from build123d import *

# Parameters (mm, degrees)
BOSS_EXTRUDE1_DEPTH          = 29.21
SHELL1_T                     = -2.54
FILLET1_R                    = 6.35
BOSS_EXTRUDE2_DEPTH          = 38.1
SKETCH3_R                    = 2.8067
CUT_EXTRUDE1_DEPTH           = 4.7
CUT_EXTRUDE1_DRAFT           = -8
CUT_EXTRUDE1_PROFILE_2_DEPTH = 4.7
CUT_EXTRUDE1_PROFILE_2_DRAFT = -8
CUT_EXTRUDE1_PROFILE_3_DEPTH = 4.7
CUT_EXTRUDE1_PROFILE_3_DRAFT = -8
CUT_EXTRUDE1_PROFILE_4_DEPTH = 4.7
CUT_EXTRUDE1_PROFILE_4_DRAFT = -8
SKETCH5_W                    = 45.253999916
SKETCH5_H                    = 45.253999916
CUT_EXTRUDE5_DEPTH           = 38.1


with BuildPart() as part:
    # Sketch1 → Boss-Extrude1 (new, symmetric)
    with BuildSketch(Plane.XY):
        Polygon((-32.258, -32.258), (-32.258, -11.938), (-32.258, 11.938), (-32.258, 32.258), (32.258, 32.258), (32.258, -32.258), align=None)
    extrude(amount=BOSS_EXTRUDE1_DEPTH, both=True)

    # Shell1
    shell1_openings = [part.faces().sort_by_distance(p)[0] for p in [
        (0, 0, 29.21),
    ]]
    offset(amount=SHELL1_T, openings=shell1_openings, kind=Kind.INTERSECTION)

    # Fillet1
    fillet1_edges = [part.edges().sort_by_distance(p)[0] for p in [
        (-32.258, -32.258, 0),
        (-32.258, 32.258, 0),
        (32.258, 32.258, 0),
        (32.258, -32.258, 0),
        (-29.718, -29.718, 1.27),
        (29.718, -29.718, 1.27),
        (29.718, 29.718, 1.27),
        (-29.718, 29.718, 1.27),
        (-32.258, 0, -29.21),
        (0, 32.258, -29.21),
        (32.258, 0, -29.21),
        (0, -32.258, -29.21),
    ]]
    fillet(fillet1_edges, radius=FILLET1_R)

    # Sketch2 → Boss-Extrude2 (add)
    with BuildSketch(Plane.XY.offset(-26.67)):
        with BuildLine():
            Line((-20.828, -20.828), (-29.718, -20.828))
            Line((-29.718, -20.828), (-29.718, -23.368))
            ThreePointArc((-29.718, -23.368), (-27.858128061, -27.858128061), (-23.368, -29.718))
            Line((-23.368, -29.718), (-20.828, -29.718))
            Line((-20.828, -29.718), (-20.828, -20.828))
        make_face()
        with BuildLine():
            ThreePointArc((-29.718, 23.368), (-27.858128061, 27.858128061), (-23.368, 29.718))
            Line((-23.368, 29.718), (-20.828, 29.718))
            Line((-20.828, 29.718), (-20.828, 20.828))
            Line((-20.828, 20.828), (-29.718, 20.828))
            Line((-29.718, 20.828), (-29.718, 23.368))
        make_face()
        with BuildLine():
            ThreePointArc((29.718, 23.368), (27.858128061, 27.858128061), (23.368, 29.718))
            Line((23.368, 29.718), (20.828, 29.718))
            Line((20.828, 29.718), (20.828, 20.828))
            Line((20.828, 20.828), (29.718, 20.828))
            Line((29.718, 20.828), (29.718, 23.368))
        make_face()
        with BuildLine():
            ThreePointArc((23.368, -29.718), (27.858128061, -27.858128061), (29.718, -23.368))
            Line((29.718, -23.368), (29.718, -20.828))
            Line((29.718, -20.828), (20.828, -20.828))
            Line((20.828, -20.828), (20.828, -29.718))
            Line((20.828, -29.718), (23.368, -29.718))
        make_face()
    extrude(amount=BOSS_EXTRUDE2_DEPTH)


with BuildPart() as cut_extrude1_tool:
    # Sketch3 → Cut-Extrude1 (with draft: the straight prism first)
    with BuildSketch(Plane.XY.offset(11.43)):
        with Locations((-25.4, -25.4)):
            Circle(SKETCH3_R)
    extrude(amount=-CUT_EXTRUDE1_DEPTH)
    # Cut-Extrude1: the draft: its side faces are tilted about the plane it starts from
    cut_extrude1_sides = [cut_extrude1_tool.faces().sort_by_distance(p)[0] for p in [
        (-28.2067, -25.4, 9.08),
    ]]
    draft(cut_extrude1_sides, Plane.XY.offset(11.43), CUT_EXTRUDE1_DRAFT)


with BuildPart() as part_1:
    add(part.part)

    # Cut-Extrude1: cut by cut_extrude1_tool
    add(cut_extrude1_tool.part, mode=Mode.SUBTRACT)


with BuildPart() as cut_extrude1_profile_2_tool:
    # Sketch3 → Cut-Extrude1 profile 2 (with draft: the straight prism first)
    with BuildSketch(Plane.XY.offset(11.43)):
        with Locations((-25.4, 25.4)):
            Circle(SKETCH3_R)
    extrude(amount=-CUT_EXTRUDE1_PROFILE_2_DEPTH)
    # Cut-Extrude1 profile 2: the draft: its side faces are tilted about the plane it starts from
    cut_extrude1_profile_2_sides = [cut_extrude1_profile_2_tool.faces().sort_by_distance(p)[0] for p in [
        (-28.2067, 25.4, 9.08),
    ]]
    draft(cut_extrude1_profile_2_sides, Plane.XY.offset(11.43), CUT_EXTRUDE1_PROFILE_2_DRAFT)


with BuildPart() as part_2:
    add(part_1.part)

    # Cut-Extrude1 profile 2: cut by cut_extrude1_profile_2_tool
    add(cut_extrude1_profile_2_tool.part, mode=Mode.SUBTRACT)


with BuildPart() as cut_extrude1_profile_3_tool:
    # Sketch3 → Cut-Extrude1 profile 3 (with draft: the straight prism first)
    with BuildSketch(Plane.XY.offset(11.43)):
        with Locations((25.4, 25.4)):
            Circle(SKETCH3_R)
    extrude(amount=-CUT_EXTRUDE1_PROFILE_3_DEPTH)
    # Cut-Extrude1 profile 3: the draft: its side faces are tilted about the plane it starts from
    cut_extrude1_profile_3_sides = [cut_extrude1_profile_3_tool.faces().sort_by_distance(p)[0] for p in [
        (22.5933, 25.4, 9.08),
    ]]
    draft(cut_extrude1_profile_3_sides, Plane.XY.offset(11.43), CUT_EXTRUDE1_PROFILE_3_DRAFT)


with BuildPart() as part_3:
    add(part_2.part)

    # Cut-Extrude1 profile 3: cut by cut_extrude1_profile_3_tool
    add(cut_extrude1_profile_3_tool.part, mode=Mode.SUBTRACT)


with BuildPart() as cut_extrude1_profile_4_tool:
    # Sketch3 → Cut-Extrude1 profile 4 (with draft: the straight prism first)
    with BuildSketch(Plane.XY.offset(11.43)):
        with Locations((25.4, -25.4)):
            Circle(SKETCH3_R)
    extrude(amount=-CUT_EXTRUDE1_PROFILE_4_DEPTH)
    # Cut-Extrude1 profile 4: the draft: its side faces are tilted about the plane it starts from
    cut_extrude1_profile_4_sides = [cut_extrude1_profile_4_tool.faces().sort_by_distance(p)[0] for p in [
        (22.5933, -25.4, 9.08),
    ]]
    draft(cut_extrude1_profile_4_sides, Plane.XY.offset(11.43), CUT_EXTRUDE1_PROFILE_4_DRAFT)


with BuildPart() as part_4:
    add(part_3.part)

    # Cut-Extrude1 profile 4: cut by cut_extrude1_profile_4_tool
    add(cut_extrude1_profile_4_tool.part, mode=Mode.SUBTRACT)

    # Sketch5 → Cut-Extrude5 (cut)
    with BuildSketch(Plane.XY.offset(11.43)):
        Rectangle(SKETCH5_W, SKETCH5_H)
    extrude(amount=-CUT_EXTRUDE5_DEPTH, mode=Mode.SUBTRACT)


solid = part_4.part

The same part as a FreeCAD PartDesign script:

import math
import FreeCAD as App
import Part
import Sketcher

V = App.Vector
Q = App.Units.Quantity


def edges_at(feature, points):
    """Names of the edges that pass closest to the given points."""
    edges = feature.Shape.Edges
    near = lambda p: min(range(len(edges)), key=lambda i: edges[i].distToShape(Part.Vertex(*p))[0])
    return sorted({f"Edge{near(p) + 1}" for p in points})


def faces_at(feature, points):
    """Names of the faces that lie closest to the given points."""
    faces = feature.Shape.Faces
    near = lambda p: min(range(len(faces)), key=lambda i: faces[i].distToShape(Part.Vertex(*p))[0])
    return sorted({f"Face{near(p) + 1}" for p in points})

doc = App.newDocument("Part")
body = doc.addObject("PartDesign::Body", "Body")

# Sketch on XY plane
sketch1 = doc.addObject("Sketcher::SketchObject", "Sketch")
body.addObject(sketch1)
sketch1.AttachmentSupport = (doc.XY_Plane, [""])
sketch1.MapMode = "FlatFace"
sketch1.addGeometry(Part.LineSegment(V(-32, 32, 0), V(-32, -32, 0)), False)
sketch1.addGeometry(Part.LineSegment(V(-32, -32, 0), V(32, -32, 0)), False)
sketch1.addGeometry(Part.LineSegment(V(32, -32, 0), V(32, 32, 0)), False)
sketch1.addGeometry(Part.LineSegment(V(32, 32, 0), V(-32, 32, 0)), False)
sketch1.addConstraint(Sketcher.Constraint("Coincident", 0, 2, 1, 1))
sketch1.addConstraint(Sketcher.Constraint("Coincident", 1, 2, 2, 1))
sketch1.addConstraint(Sketcher.Constraint("Coincident", 2, 2, 3, 1))
sketch1.addConstraint(Sketcher.Constraint("Coincident", 3, 2, 0, 1))
sketch1.addConstraint(Sketcher.Constraint("Vertical", 0))
sketch1.addConstraint(Sketcher.Constraint("Horizontal", 1))
sketch1.addConstraint(Sketcher.Constraint("Vertical", 2))
sketch1.addConstraint(Sketcher.Constraint("Horizontal", 3))
sketch1.addConstraint(Sketcher.Constraint("Symmetric", 0, 2, 2, 2, -1, 1))
sketch1.addConstraint(Sketcher.Constraint("Equal", 3, 0))
sketch1.addConstraint(Sketcher.Constraint("DistanceX", 1, 1, 1, 2, Q("2.54 in")))
pad1 = doc.addObject("PartDesign::Pad", "Pad")
body.addObject(pad1)
pad1.Profile = sketch1
pad1.Length = Q("2.3 in")
pad1.Midplane = True
doc.recompute()

thickness = doc.addObject("PartDesign::Thickness", "Thickness")
body.addObject(thickness)
thickness.Base = (pad1, faces_at(pad1, [(0, 0, 29.21)]))
thickness.Value = Q("0.1 in")
thickness.Reversed = True
thickness.Join = "Intersection"
doc.recompute()

fillet = doc.addObject("PartDesign::Fillet", "Fillet")
body.addObject(fillet)
fillet.Base = (thickness, edges_at(thickness, [
    (-32.258, -32.258, 0),
    (-32.258, 32.258, 0),
    (32.258, 32.258, 0),
    (32.258, -32.258, 0),
    (-29.718, -29.718, 1.27),
    (29.718, -29.718, 1.27),
    (29.718, 29.718, 1.27),
    (-29.718, 29.718, 1.27),
    (-32.258, 0, -29.21),
    (0, 32.258, -29.21),
    (32.258, 0, -29.21),
    (0, -32.258, -29.21),
]))
fillet.Radius = Q("0.25 in")

# Sketch on XY plane
sketch2 = doc.addObject("Sketcher::SketchObject", "Sketch001")
body.addObject(sketch2)
sketch2.AttachmentSupport = (doc.XY_Plane, [""])
sketch2.MapMode = "FlatFace"
sketch2.AttachmentOffset = App.Placement(V(0, 0, -1.05 * 25.4), App.Rotation())
sketch2.addGeometry(Part.LineSegment(V(-20.8, -20.8, 0), V(-29.7, -20.8, 0)), False)
sketch2.addGeometry(Part.LineSegment(V(-29.7, -20.8, 0), V(-29.7, -23.4, 0)), False)
sketch2.addGeometry(Part.ArcOfCircle(Part.Circle(V(-23.4, -23.4, 0), V(0, 0, 1), 6.3), math.radians(180), math.radians(270)), False)
sketch2.addGeometry(Part.LineSegment(V(-23.4, -29.7, 0), V(-20.8, -29.7, 0)), False)
sketch2.addGeometry(Part.LineSegment(V(-20.8, -29.7, 0), V(-20.8, -20.8, 0)), False)
sketch2.addGeometry(Part.ArcOfCircle(Part.Circle(V(-23.4, 23.4, 0), V(0, 0, 1), 6.3), math.radians(90), math.radians(180)), False)
sketch2.addGeometry(Part.LineSegment(V(-29.7, 23.4, 0), V(-29.7, 20.8, 0)), False)
sketch2.addGeometry(Part.LineSegment(V(-29.7, 20.8, 0), V(-20.8, 20.8, 0)), False)
sketch2.addGeometry(Part.LineSegment(V(-20.8, 20.8, 0), V(-20.8, 29.7, 0)), False)
sketch2.addGeometry(Part.LineSegment(V(-20.8, 29.7, 0), V(-23.4, 29.7, 0)), False)
sketch2.addGeometry(Part.ArcOfCircle(Part.Circle(V(23.4, 23.4, 0), V(0, 0, 1), 6.3), math.radians(0), math.radians(90)), False)
sketch2.addGeometry(Part.LineSegment(V(23.4, 29.7, 0), V(20.8, 29.7, 0)), False)
sketch2.addGeometry(Part.LineSegment(V(20.8, 29.7, 0), V(20.8, 20.8, 0)), False)
sketch2.addGeometry(Part.LineSegment(V(20.8, 20.8, 0), V(29.7, 20.8, 0)), False)
sketch2.addGeometry(Part.LineSegment(V(29.7, 20.8, 0), V(29.7, 23.4, 0)), False)
sketch2.addGeometry(Part.ArcOfCircle(Part.Circle(V(23.4, -23.4, 0), V(0, 0, 1), 6.3), math.radians(-90), math.radians(0)), False)
sketch2.addGeometry(Part.LineSegment(V(29.7, -23.4, 0), V(29.7, -20.8, 0)), False)
sketch2.addGeometry(Part.LineSegment(V(29.7, -20.8, 0), V(20.8, -20.8, 0)), False)
sketch2.addGeometry(Part.LineSegment(V(20.8, -20.8, 0), V(20.8, -29.7, 0)), False)
sketch2.addGeometry(Part.LineSegment(V(20.8, -29.7, 0), V(23.4, -29.7, 0)), False)
sketch2.addConstraint(Sketcher.Constraint("Coincident", 0, 2, 1, 1))
sketch2.addConstraint(Sketcher.Constraint("Tangent", 1, 2, 2, 1))
sketch2.addConstraint(Sketcher.Constraint("Tangent", 2, 2, 3, 1))
sketch2.addConstraint(Sketcher.Constraint("Coincident", 3, 2, 4, 1))
sketch2.addConstraint(Sketcher.Constraint("Coincident", 4, 2, 0, 1))
sketch2.addConstraint(Sketcher.Constraint("Tangent", 5, 2, 6, 1))
sketch2.addConstraint(Sketcher.Constraint("Coincident", 6, 2, 7, 1))
sketch2.addConstraint(Sketcher.Constraint("Coincident", 7, 2, 8, 1))
sketch2.addConstraint(Sketcher.Constraint("Coincident", 8, 2, 9, 1))
sketch2.addConstraint(Sketcher.Constraint("Tangent", 9, 2, 5, 1))
sketch2.addConstraint(Sketcher.Constraint("Tangent", 10, 2, 11, 1))
sketch2.addConstraint(Sketcher.Constraint("Coincident", 11, 2, 12, 1))
sketch2.addConstraint(Sketcher.Constraint("Coincident", 12, 2, 13, 1))
sketch2.addConstraint(Sketcher.Constraint("Coincident", 13, 2, 14, 1))
sketch2.addConstraint(Sketcher.Constraint("Tangent", 14, 2, 10, 1))
sketch2.addConstraint(Sketcher.Constraint("Tangent", 15, 2, 16, 1))
sketch2.addConstraint(Sketcher.Constraint("Coincident", 16, 2, 17, 1))
sketch2.addConstraint(Sketcher.Constraint("Coincident", 17, 2, 18, 1))
sketch2.addConstraint(Sketcher.Constraint("Coincident", 18, 2, 19, 1))
sketch2.addConstraint(Sketcher.Constraint("Tangent", 19, 2, 15, 1))
sketch2.addConstraint(Sketcher.Constraint("Horizontal", 0))
sketch2.addConstraint(Sketcher.Constraint("Vertical", 1))
sketch2.addConstraint(Sketcher.Constraint("Horizontal", 3))
sketch2.addConstraint(Sketcher.Constraint("Vertical", 4))
sketch2.addConstraint(Sketcher.Constraint("Vertical", 6))
sketch2.addConstraint(Sketcher.Constraint("Horizontal", 7))
sketch2.addConstraint(Sketcher.Constraint("Vertical", 8))
sketch2.addConstraint(Sketcher.Constraint("Horizontal", 9))
sketch2.addConstraint(Sketcher.Constraint("Horizontal", 11))
sketch2.addConstraint(Sketcher.Constraint("Vertical", 12))
sketch2.addConstraint(Sketcher.Constraint("Horizontal", 13))
sketch2.addConstraint(Sketcher.Constraint("Vertical", 14))
sketch2.addConstraint(Sketcher.Constraint("Vertical", 16))
sketch2.addConstraint(Sketcher.Constraint("Horizontal", 17))
sketch2.addConstraint(Sketcher.Constraint("Vertical", 18))
sketch2.addConstraint(Sketcher.Constraint("Horizontal", 19))
sketch2.addConstraint(Sketcher.Constraint("Equal", 2, 5))
sketch2.addConstraint(Sketcher.Constraint("Equal", 5, 10))
sketch2.addConstraint(Sketcher.Constraint("Equal", 10, 15))
sketch2.addConstraint(Sketcher.Constraint("Symmetric", 2, 3, 10, 3, -1, 1))
sketch2.addConstraint(Sketcher.Constraint("Symmetric", 5, 3, 15, 3, -1, 1))
sketch2.addConstraint(Sketcher.Constraint("Symmetric", 4, 2, 12, 2, -1, 1))
sketch2.addConstraint(Sketcher.Constraint("Symmetric", 7, 2, 17, 2, -1, 1))
sketch2.addConstraint(Sketcher.Constraint("Symmetric", 5, 3, 10, 3, -2))
sketch2.addConstraint(Sketcher.Constraint("Symmetric", 7, 2, 12, 2, -2))
sketch2.addConstraint(Sketcher.Constraint("Equal", 19, 1))
sketch2.addConstraint(Sketcher.Constraint("Radius", 2, Q("0.25 in")))
sketch2.addConstraint(Sketcher.Constraint("DistanceX", 3, 1, 3, 2, Q("0.1 in")))
sketch2.addConstraint(Sketcher.Constraint("DistanceX", 2, 3, -1, 1, Q("0.92 in")))
sketch2.addConstraint(Sketcher.Constraint("DistanceY", 2, 3, -1, 1, Q("0.92 in")))
pad2 = doc.addObject("PartDesign::Pad", "Pad001")
body.addObject(pad2)
pad2.Profile = sketch2
pad2.Length = Q("1.5 in")
body2 = doc.addObject("PartDesign::Body", "Body001")

# Sketch on XY plane
sketch3 = doc.addObject("Sketcher::SketchObject", "Sketch002")
body2.addObject(sketch3)
sketch3.AttachmentSupport = (doc.getObject("XY_Plane001"), [""])
sketch3.MapMode = "FlatFace"
sketch3.AttachmentOffset = App.Placement(V(0, 0, 0.45 * 25.4), App.Rotation())
sketch3.addGeometry(Part.Circle(V(-25.4, -25.4, 0), V(0, 0, 1), 2.8), False)
sketch3.addConstraint(Sketcher.Constraint("Diameter", 0, Q("0.221 in")))
sketch3.addConstraint(Sketcher.Constraint("DistanceX", 0, 3, -1, 1, Q("1 in")))
sketch3.addConstraint(Sketcher.Constraint("DistanceY", 0, 3, -1, 1, Q("1 in")))
pad3 = doc.addObject("PartDesign::Pad", "Pad002")
body2.addObject(pad3)
pad3.Profile = sketch3
pad3.Length = 4.7
pad3.Reversed = True
doc.recompute()

datumplane = doc.addObject("PartDesign::Plane", "DatumPlane")
body2.addObject(datumplane)
datumplane.AttachmentSupport = (doc.getObject("XY_Plane001"), [""])
datumplane.MapMode = "FlatFace"
datumplane.AttachmentOffset = App.Placement(V(0, 0, 0.45 * 25.4), App.Rotation())
draft = doc.addObject("PartDesign::Draft", "Draft")
body2.addObject(draft)
draft.Base = (pad3, faces_at(pad3, [(-28.207, -25.4, 9.08)]))
draft.NeutralPlane = (datumplane, [""])
draft.Angle = 8
draft.Reversed = True
doc.recompute()

boolean = doc.addObject("PartDesign::Boolean", "Boolean")
body.addObject(boolean)
boolean.Type = "Cut"
boolean.addObjects([body2])
body3 = doc.addObject("PartDesign::Body", "Body002")

# Sketch on XY plane
sketch4 = doc.addObject("Sketcher::SketchObject", "Sketch003")
body3.addObject(sketch4)
sketch4.AttachmentSupport = (doc.getObject("XY_Plane002"), [""])
sketch4.MapMode = "FlatFace"
sketch4.AttachmentOffset = App.Placement(V(0, 0, 0.45 * 25.4), App.Rotation())
sketch4.addGeometry(Part.Circle(V(-25.4, 25.4, 0), V(0, 0, 1), 2.8), False)
sketch4.addConstraint(Sketcher.Constraint("Diameter", 0, Q("0.221 in")))
sketch4.addConstraint(Sketcher.Constraint("DistanceX", 0, 3, -1, 1, Q("1 in")))
sketch4.addConstraint(Sketcher.Constraint("DistanceY", -1, 1, 0, 3, Q("1 in")))
pad4 = doc.addObject("PartDesign::Pad", "Pad003")
body3.addObject(pad4)
pad4.Profile = sketch4
pad4.Length = 4.7
pad4.Reversed = True
doc.recompute()

datumplane2 = doc.addObject("PartDesign::Plane", "DatumPlane001")
body3.addObject(datumplane2)
datumplane2.AttachmentSupport = (doc.getObject("XY_Plane002"), [""])
datumplane2.MapMode = "FlatFace"
datumplane2.AttachmentOffset = App.Placement(V(0, 0, 0.45 * 25.4), App.Rotation())
draft2 = doc.addObject("PartDesign::Draft", "Draft001")
body3.addObject(draft2)
draft2.Base = (pad4, faces_at(pad4, [(-28.207, 25.4, 9.08)]))
draft2.NeutralPlane = (datumplane2, [""])
draft2.Angle = 8
draft2.Reversed = True
doc.recompute()

boolean2 = doc.addObject("PartDesign::Boolean", "Boolean001")
body.addObject(boolean2)
boolean2.Type = "Cut"
boolean2.addObjects([body3])
body4 = doc.addObject("PartDesign::Body", "Body003")

# Sketch on XY plane
sketch5 = doc.addObject("Sketcher::SketchObject", "Sketch004")
body4.addObject(sketch5)
sketch5.AttachmentSupport = (doc.getObject("XY_Plane003"), [""])
sketch5.MapMode = "FlatFace"
sketch5.AttachmentOffset = App.Placement(V(0, 0, 0.45 * 25.4), App.Rotation())
sketch5.addGeometry(Part.Circle(V(25.4, 25.4, 0), V(0, 0, 1), 2.8), False)
sketch5.addConstraint(Sketcher.Constraint("Diameter", 0, Q("0.221 in")))
sketch5.addConstraint(Sketcher.Constraint("DistanceX", -1, 1, 0, 3, Q("1 in")))
sketch5.addConstraint(Sketcher.Constraint("DistanceY", -1, 1, 0, 3, Q("1 in")))
pad5 = doc.addObject("PartDesign::Pad", "Pad004")
body4.addObject(pad5)
pad5.Profile = sketch5
pad5.Length = 4.7
pad5.Reversed = True
doc.recompute()

datumplane3 = doc.addObject("PartDesign::Plane", "DatumPlane002")
body4.addObject(datumplane3)
datumplane3.AttachmentSupport = (doc.getObject("XY_Plane003"), [""])
datumplane3.MapMode = "FlatFace"
datumplane3.AttachmentOffset = App.Placement(V(0, 0, 0.45 * 25.4), App.Rotation())
draft3 = doc.addObject("PartDesign::Draft", "Draft002")
body4.addObject(draft3)
draft3.Base = (pad5, faces_at(pad5, [(22.593, 25.4, 9.08)]))
draft3.NeutralPlane = (datumplane3, [""])
draft3.Angle = 8
draft3.Reversed = True
doc.recompute()

boolean3 = doc.addObject("PartDesign::Boolean", "Boolean002")
body.addObject(boolean3)
boolean3.Type = "Cut"
boolean3.addObjects([body4])
body5 = doc.addObject("PartDesign::Body", "Body004")

# Sketch on XY plane
sketch6 = doc.addObject("Sketcher::SketchObject", "Sketch005")
body5.addObject(sketch6)
sketch6.AttachmentSupport = (doc.getObject("XY_Plane004"), [""])
sketch6.MapMode = "FlatFace"
sketch6.AttachmentOffset = App.Placement(V(0, 0, 0.45 * 25.4), App.Rotation())
sketch6.addGeometry(Part.Circle(V(25.4, -25.4, 0), V(0, 0, 1), 2.8), False)
sketch6.addConstraint(Sketcher.Constraint("Diameter", 0, Q("0.221 in")))
sketch6.addConstraint(Sketcher.Constraint("DistanceX", -1, 1, 0, 3, Q("1 in")))
sketch6.addConstraint(Sketcher.Constraint("DistanceY", 0, 3, -1, 1, Q("1 in")))
pad6 = doc.addObject("PartDesign::Pad", "Pad005")
body5.addObject(pad6)
pad6.Profile = sketch6
pad6.Length = 4.7
pad6.Reversed = True
doc.recompute()

datumplane4 = doc.addObject("PartDesign::Plane", "DatumPlane003")
body5.addObject(datumplane4)
datumplane4.AttachmentSupport = (doc.getObject("XY_Plane004"), [""])
datumplane4.MapMode = "FlatFace"
datumplane4.AttachmentOffset = App.Placement(V(0, 0, 0.45 * 25.4), App.Rotation())
draft4 = doc.addObject("PartDesign::Draft", "Draft003")
body5.addObject(draft4)
draft4.Base = (pad6, faces_at(pad6, [(22.593, -25.4, 9.08)]))
draft4.NeutralPlane = (datumplane4, [""])
draft4.Angle = 8
draft4.Reversed = True
doc.recompute()

boolean4 = doc.addObject("PartDesign::Boolean", "Boolean003")
body.addObject(boolean4)
boolean4.Type = "Cut"
boolean4.addObjects([body5])

# Sketch on XY plane
sketch7 = doc.addObject("Sketcher::SketchObject", "Sketch006")
body.addObject(sketch7)
sketch7.AttachmentSupport = (doc.XY_Plane, [""])
sketch7.MapMode = "FlatFace"
sketch7.AttachmentOffset = App.Placement(V(0, 0, 0.45 * 25.4), App.Rotation())
sketch7.addGeometry(Part.LineSegment(V(-23, 23, 0), V(-23, -23, 0)), False)
sketch7.addGeometry(Part.LineSegment(V(-23, -23, 0), V(23, -23, 0)), False)
sketch7.addGeometry(Part.LineSegment(V(23, -23, 0), V(23, 23, 0)), False)
sketch7.addGeometry(Part.LineSegment(V(23, 23, 0), V(-23, 23, 0)), False)
sketch7.addConstraint(Sketcher.Constraint("Coincident", 0, 2, 1, 1))
sketch7.addConstraint(Sketcher.Constraint("Coincident", 1, 2, 2, 1))
sketch7.addConstraint(Sketcher.Constraint("Coincident", 2, 2, 3, 1))
sketch7.addConstraint(Sketcher.Constraint("Coincident", 3, 2, 0, 1))
sketch7.addConstraint(Sketcher.Constraint("Vertical", 0))
sketch7.addConstraint(Sketcher.Constraint("Horizontal", 1))
sketch7.addConstraint(Sketcher.Constraint("Vertical", 2))
sketch7.addConstraint(Sketcher.Constraint("Horizontal", 3))
sketch7.addConstraint(Sketcher.Constraint("Symmetric", 0, 2, 2, 2, -1, 1))
sketch7.addConstraint(Sketcher.Constraint("Equal", 3, 0))
sketch7.addConstraint(Sketcher.Constraint("DistanceX", 1, 1, 1, 2, 45.254))
pocket1 = doc.addObject("PartDesign::Pocket", "Pocket")
body.addObject(pocket1)
pocket1.Profile = sketch7
pocket1.Length = Q("1.5 in")

doc.recompute()
